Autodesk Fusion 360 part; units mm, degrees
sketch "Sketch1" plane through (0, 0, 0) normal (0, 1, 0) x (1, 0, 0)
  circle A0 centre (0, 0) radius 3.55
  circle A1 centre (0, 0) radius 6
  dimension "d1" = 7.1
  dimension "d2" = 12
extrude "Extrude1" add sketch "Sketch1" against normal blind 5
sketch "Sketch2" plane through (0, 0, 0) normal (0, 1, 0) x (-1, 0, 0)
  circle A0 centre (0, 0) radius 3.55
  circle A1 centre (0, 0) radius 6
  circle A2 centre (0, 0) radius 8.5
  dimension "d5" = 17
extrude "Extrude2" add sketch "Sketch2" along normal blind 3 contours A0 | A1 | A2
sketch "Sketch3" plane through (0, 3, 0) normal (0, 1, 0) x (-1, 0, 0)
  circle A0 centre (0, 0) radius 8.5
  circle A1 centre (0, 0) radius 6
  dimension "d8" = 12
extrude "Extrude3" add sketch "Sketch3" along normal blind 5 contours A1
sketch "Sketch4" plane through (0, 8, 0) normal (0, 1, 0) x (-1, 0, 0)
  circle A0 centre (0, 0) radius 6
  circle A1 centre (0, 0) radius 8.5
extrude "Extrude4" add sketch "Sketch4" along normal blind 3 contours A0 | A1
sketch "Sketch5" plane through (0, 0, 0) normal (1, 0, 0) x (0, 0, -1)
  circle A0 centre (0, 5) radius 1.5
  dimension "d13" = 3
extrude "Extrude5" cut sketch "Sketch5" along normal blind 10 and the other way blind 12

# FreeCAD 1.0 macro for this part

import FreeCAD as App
import Part
import Sketcher

V = App.Vector
Q = App.Units.Quantity

doc = App.newDocument("Part")
params = doc.addObject("Spreadsheet::Sheet", "Params")
for row, (alias, value) in enumerate([
    ("sketch1_diameter", "12 mm"),
    ("sketch1_diameter2", "7.1 mm"),
    ("pad1_length", "5 mm"),
    ("sketch2_diameter", "17 mm"),
    ("pad2_length", "3 mm"),
    ("sketch3_diameter", "12 mm"),
    ("pad3_length", "5 mm"),
    ("sketch4_diameter", "17 mm"),
    ("pad4_length", "3 mm"),
    ("sketch5_diameter", "3 mm"),
], start=1):
    params.set(f"A{row}", alias)
    params.set(f"B{row}", "=" + value)
    params.setAlias(f"B{row}", alias)

body = doc.addObject("PartDesign::Body", "Body")

# Sketch on XZ plane
sketch1 = doc.addObject("Sketcher::SketchObject", "Sketch")
body.addObject(sketch1)
sketch1.AttachmentSupport = (doc.XZ_Plane, [""])
sketch1.MapMode = "FlatFace"
sketch1.addGeometry([
    Part.Circle(V(0, 0, 0), V(0, 0, 1), 6),
    Part.Circle(V(0, 0, 0), V(0, 0, 1), 3.55),
], False)
sketch1.addConstraint([
    Sketcher.Constraint("Coincident", 0, 3, -1, 1),
    Sketcher.Constraint("Coincident", 1, 3, -1, 1),
    Sketcher.Constraint("Diameter", 0, Q("12 mm")),
    Sketcher.Constraint("Diameter", 1, Q("7.1 mm")),
])
sketch1.setExpression("Constraints[2]", "Params.sketch1_diameter")
sketch1.setExpression("Constraints[3]", "Params.sketch1_diameter2")
pad1 = doc.addObject("PartDesign::Pad", "Pad")
body.addObject(pad1)
pad1.Profile = sketch1
pad1.setExpression("Length", "Params.pad1_length")

# Sketch on XZ plane
sketch2 = doc.addObject("Sketcher::SketchObject", "Sketch001")
body.addObject(sketch2)
sketch2.AttachmentSupport = (doc.XZ_Plane, [""])
sketch2.MapMode = "FlatFace"
sketch2.addGeometry(Part.Circle(V(0, 0, 0), V(0, 0, 1), 8.5), False)
sketch2.addConstraint([
    Sketcher.Constraint("Coincident", 0, 3, -1, 1),
    Sketcher.Constraint("Diameter", 0, Q("17 mm")),
])
sketch2.setExpression("Constraints[1]", "Params.sketch2_diameter")
pad2 = doc.addObject("PartDesign::Pad", "Pad001")
body.addObject(pad2)
pad2.Profile = sketch2
pad2.setExpression("Length", "Params.pad2_length")
pad2.Reversed = True

# Sketch on XZ plane
sketch3 = doc.addObject("Sketcher::SketchObject", "Sketch002")
body.addObject(sketch3)
sketch3.AttachmentSupport = (doc.XZ_Plane, [""])
sketch3.MapMode = "FlatFace"
sketch3.AttachmentOffset = App.Placement(V(0, 0, -3), App.Rotation())
sketch3.addGeometry(Part.Circle(V(0, 0, 0), V(0, 0, 1), 6), False)
sketch3.addConstraint([
    Sketcher.Constraint("Coincident", 0, 3, -1, 1),
    Sketcher.Constraint("Diameter", 0, Q("12 mm")),
])
sketch3.setExpression("Constraints[1]", "Params.sketch3_diameter")
pad3 = doc.addObject("PartDesign::Pad", "Pad002")
body.addObject(pad3)
pad3.Profile = sketch3
pad3.setExpression("Length", "Params.pad3_length")
pad3.Reversed = True

# Sketch on XZ plane
sketch4 = doc.addObject("Sketcher::SketchObject", "Sketch003")
body.addObject(sketch4)
sketch4.AttachmentSupport = (doc.XZ_Plane, [""])
sketch4.MapMode = "FlatFace"
sketch4.AttachmentOffset = App.Placement(V(0, 0, -8), App.Rotation())
sketch4.addGeometry(Part.Circle(V(0, 0, 0), V(0, 0, 1), 8.5), False)
sketch4.addConstraint([
    Sketcher.Constraint("Coincident", 0, 3, -1, 1),
    Sketcher.Constraint("Diameter", 0, Q("17 mm")),
])
sketch4.setExpression("Constraints[1]", "Params.sketch4_diameter")
pad4 = doc.addObject("PartDesign::Pad", "Pad003")
body.addObject(pad4)
pad4.Profile = sketch4
pad4.setExpression("Length", "Params.pad4_length")
pad4.Reversed = True

# Sketch on YZ plane
sketch5 = doc.addObject("Sketcher::SketchObject", "Sketch004")
body.addObject(sketch5)
sketch5.AttachmentSupport = (doc.YZ_Plane, [""])
sketch5.MapMode = "FlatFace"
sketch5.addGeometry(Part.Circle(V(5, 0, 0), V(0, 0, 1), 1.5), False)
sketch5.addConstraint([
    Sketcher.Constraint("PointOnObject", 0, 3, -1),
    Sketcher.Constraint("Diameter", 0, Q("3 mm")),
    Sketcher.Constraint("DistanceX", -1, 1, 0, 3, Q("5 mm")),
])
sketch5.setExpression("Constraints[1]", "Params.sketch5_diameter")
pocket1 = doc.addObject("PartDesign::Pocket", "Pocket")
body.addObject(pocket1)
pocket1.Profile = sketch5
pocket1.Type = "ThroughAll"
pocket1.Midplane = True

doc.recompute()
